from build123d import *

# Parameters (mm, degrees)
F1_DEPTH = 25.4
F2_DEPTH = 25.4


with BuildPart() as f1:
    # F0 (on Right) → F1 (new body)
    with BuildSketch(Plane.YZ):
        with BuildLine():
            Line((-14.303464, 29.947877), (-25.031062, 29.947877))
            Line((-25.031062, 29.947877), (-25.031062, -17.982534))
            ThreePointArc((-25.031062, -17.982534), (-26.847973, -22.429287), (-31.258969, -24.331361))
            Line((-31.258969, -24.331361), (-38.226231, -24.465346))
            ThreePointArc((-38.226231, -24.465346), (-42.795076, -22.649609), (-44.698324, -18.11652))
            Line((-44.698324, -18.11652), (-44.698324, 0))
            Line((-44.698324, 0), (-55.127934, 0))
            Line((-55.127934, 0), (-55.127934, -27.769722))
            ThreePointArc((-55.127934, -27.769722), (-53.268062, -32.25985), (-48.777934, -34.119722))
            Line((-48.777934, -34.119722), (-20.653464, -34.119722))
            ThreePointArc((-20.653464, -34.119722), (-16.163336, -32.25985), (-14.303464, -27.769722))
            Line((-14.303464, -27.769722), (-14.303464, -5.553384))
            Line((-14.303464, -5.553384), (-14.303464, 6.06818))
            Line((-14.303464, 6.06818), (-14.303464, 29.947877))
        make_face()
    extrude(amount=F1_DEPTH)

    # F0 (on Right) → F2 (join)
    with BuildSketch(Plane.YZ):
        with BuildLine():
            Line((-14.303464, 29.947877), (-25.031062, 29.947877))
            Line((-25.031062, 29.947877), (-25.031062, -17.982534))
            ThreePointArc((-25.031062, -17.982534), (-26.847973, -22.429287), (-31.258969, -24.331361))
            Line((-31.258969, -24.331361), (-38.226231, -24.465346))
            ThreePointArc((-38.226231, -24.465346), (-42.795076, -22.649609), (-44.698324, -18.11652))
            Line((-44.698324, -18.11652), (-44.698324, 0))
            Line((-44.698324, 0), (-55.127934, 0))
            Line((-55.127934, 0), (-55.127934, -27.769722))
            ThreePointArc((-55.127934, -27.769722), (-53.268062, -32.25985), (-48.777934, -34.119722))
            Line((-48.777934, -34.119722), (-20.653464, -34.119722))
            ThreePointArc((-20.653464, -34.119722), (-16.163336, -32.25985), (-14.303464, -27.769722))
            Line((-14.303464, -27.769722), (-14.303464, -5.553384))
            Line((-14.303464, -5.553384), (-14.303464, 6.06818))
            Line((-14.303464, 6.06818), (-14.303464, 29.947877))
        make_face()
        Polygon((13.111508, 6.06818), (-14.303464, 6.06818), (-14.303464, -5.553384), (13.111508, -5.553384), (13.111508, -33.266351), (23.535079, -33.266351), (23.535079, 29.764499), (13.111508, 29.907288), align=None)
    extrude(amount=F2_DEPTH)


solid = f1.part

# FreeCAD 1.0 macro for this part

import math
import FreeCAD as App
import Part
import Sketcher
Q = App.Units.Quantity

doc = App.newDocument("Part")
params = doc.addObject("Spreadsheet::Sheet", "Params")
for row, (alias, value) in enumerate([
    ("sketch1_radius", "0.25 in"),
    ("pad1_length", "1 in"),
    ("sketch2_radius", "0.25 in"),
    ("pad2_length", "1 in"),
], start=1):
    params.set(f"A{row}", alias)
    params.set(f"B{row}", "=" + value)
    params.setAlias(f"B{row}", alias)

body = doc.addObject("PartDesign::Body", "Body")

# Sketch on YZ plane
sketch1 = doc.addObject("Sketcher::SketchObject", "Sketch")
body.addObject(sketch1)
sketch1.AttachmentSupport = (doc.YZ_Plane, [""])
sketch1.MapMode = "FlatFace"
sketch1.addGeometry([
    Part.LineSegment(App.Vector(-14, 30, 0), App.Vector(-25, 30, 0)),  # 0
    Part.LineSegment(App.Vector(-25, 30, 0), App.Vector(-25, -18, 0)),  # 1
    Part.ArcOfCircle(Part.Circle(App.Vector(-31, -18, 0), App.Vector(0, 0, 1), 6), math.radians(-89), math.radians(0)),  # 2
    Part.LineSegment(App.Vector(-31, -24, 0), App.Vector(-38, -24, 0)),  # 3
    Part.ArcOfCircle(Part.Circle(App.Vector(-38, -18, 0), App.Vector(0, 0, 1), 6), math.radians(-180), math.radians(-89)),  # 4
    Part.LineSegment(App.Vector(-45, -18, 0), App.Vector(-45, 0, 0)),  # 5
    Part.LineSegment(App.Vector(-45, 0, 0), App.Vector(-55, 0, 0)),  # 6
    Part.LineSegment(App.Vector(-55, 0, 0), App.Vector(-55, -28, 0)),  # 7
    Part.ArcOfCircle(Part.Circle(App.Vector(-49, -28, 0), App.Vector(0, 0, 1), 6), math.radians(-180), math.radians(-90)),  # 8
    Part.LineSegment(App.Vector(-49, -34, 0), App.Vector(-21, -34, 0)),  # 9
    Part.ArcOfCircle(Part.Circle(App.Vector(-21, -28, 0), App.Vector(0, 0, 1), 6), math.radians(-90), math.radians(0)),  # 10
    Part.LineSegment(App.Vector(-14, -28, 0), App.Vector(-14, 30, 0)),  # 11
], False)
sketch1.addConstraint([
    Sketcher.Constraint("Coincident", 0, 2, 1, 1),
    Sketcher.Constraint("Tangent", 1, 2, 2, 2),
    Sketcher.Constraint("Tangent", 2, 1, 3, 1),
    Sketcher.Constraint("Tangent", 3, 2, 4, 2),
    Sketcher.Constraint("Tangent", 4, 1, 5, 1),
    Sketcher.Constraint("Coincident", 5, 2, 6, 1),
    Sketcher.Constraint("Coincident", 6, 2, 7, 1),
    Sketcher.Constraint("Tangent", 7, 2, 8, 1),
    Sketcher.Constraint("Tangent", 8, 2, 9, 1),
    Sketcher.Constraint("Tangent", 9, 2, 10, 1),
    Sketcher.Constraint("Tangent", 10, 2, 11, 1),
    Sketcher.Constraint("Coincident", 11, 2, 0, 1),
    Sketcher.Constraint("Horizontal", 0),
    Sketcher.Constraint("Vertical", 1),
    Sketcher.Constraint("Vertical", 5),
    Sketcher.Constraint("Horizontal", 6),
    Sketcher.Constraint("Vertical", 7),
    Sketcher.Constraint("Horizontal", 9),
    Sketcher.Constraint("Vertical", 11),
    Sketcher.Constraint("Equal", 2, 4),
    Sketcher.Constraint("Equal", 4, 8),
    Sketcher.Constraint("Equal", 8, 10),
    Sketcher.Constraint("PointOnObject", 5, 2, -1),
    Sketcher.Constraint("Radius", 2, Q("0.25 in")),
    Sketcher.Constraint("DistanceY", 11, 1, 11, 2, Q("57.717599 mm")),
    Sketcher.Constraint("DistanceX", 6, 2, 6, 1, Q("10.42961 mm")),
    Sketcher.Constraint("DistanceX", 9, 1, 9, 2, Q("28.12447 mm")),
    Sketcher.Constraint("DistanceY", 1, 2, 1, 1, Q("47.930411 mm")),
    Sketcher.Constraint("DistanceY", 5, 1, 5, 2, Q("18.11652 mm")),
    Sketcher.Constraint("DistanceY", 8, 3, 4, 3, Q("9.653202 mm")),
    Sketcher.Constraint("Distance", 3, Q("6.96855 mm")),
    Sketcher.Constraint("DistanceX", 2, 3, -1, 1, Q("31.381062 mm")),
])
sketch1.setExpression("Constraints[23]", "Params.sketch1_radius")
pad1 = doc.addObject("PartDesign::Pad", "Pad")
body.addObject(pad1)
pad1.Profile = sketch1
pad1.setExpression("Length", "Params.pad1_length")

# Sketch on YZ plane
sketch2 = doc.addObject("Sketcher::SketchObject", "Sketch001")
body.addObject(sketch2)
sketch2.AttachmentSupport = (doc.YZ_Plane, [""])
sketch2.MapMode = "FlatFace"
sketch2.addGeometry([
    Part.LineSegment(App.Vector(-14.303464, 29.947877, 0), App.Vector(-25.031062, 29.947877, 0)),  # 0
    Part.LineSegment(App.Vector(-25.031062, 29.947877, 0), App.Vector(-25.031062, -17.982534, 0)),  # 1
    Part.ArcOfCircle(Part.Circle(App.Vector(-31.381062, -17.982535, 0), App.Vector(0, 0, 1), 6.35), math.radians(-88.898293), math.radians(0.000009)),  # 2
    Part.LineSegment(App.Vector(-31.258969, -24.331361, 0), App.Vector(-38.226231, -24.465346, 0)),  # 3
    Part.ArcOfCircle(Part.Circle(App.Vector(-38.348324, -18.11652, 0), App.Vector(0, 0, 1), 6.35), math.radians(-180), math.radians(-88.898291)),  # 4
    Part.LineSegment(App.Vector(-44.698324, -18.11652, 0), App.Vector(-44.698324, 0, 0)),  # 5
    Part.LineSegment(App.Vector(-44.698324, 0, 0), App.Vector(-55.127934, 0, 0)),  # 6
    Part.LineSegment(App.Vector(-55.127934, 0, 0), App.Vector(-55.127934, -27.769722, 0)),  # 7
    Part.ArcOfCircle(Part.Circle(App.Vector(-48.777934, -27.769722, 0), App.Vector(0, 0, 1), 6.35), math.radians(-179.999998), math.radians(-90.000002)),  # 8
    Part.LineSegment(App.Vector(-48.777934, -34.119722, 0), App.Vector(-20.653464, -34.119722, 0)),  # 9
    Part.ArcOfCircle(Part.Circle(App.Vector(-20.653464, -27.769722, 0), App.Vector(0, 0, 1), 6.35), math.radians(-89.999998), math.radians(-0.000002)),  # 10
    Part.LineSegment(App.Vector(-14.303464, -27.769722, 0), App.Vector(-14.303464, -5.553384, 0)),  # 11
    Part.LineSegment(App.Vector(-14.303464, -5.553384, 0), App.Vector(13.111508, -5.553384, 0)),  # 12
    Part.LineSegment(App.Vector(13.111508, -5.553384, 0), App.Vector(13.111508, -33.266351, 0)),  # 13
    Part.LineSegment(App.Vector(13.111508, -33.266351, 0), App.Vector(23.535079, -33.266351, 0)),  # 14
    Part.LineSegment(App.Vector(23.535079, -33.266351, 0), App.Vector(23.535079, 29.764499, 0)),  # 15
    Part.LineSegment(App.Vector(23.535079, 29.764499, 0), App.Vector(13.111508, 29.907288, 0)),  # 16
    Part.LineSegment(App.Vector(13.111508, 29.907288, 0), App.Vector(13.111508, 6.06818, 0)),  # 17
    Part.LineSegment(App.Vector(13.111508, 6.06818, 0), App.Vector(-14.303464, 6.06818, 0)),  # 18
    Part.LineSegment(App.Vector(-14.303464, 6.06818, 0), App.Vector(-14.303464, 29.947877, 0)),  # 19
], False)
sketch2.addConstraint([
    Sketcher.Constraint("Coincident", 0, 2, 1, 1),
    Sketcher.Constraint("Tangent", 1, 2, 2, 2),
    Sketcher.Constraint("Tangent", 2, 1, 3, 1),
    Sketcher.Constraint("Tangent", 3, 2, 4, 2),
    Sketcher.Constraint("Tangent", 4, 1, 5, 1),
    Sketcher.Constraint("Coincident", 5, 2, 6, 1),
    Sketcher.Constraint("Coincident", 6, 2, 7, 1),
    Sketcher.Constraint("Tangent", 7, 2, 8, 1),
    Sketcher.Constraint("Tangent", 8, 2, 9, 1),
    Sketcher.Constraint("Tangent", 9, 2, 10, 1),
    Sketcher.Constraint("Tangent", 10, 2, 11, 1),
    Sketcher.Constraint("Coincident", 11, 2, 12, 1),
    Sketcher.Constraint("Coincident", 12, 2, 13, 1),
    Sketcher.Constraint("Coincident", 13, 2, 14, 1),
    Sketcher.Constraint("Coincident", 14, 2, 15, 1),
    Sketcher.Constraint("Coincident", 15, 2, 16, 1),
    Sketcher.Constraint("Coincident", 16, 2, 17, 1),
    Sketcher.Constraint("Coincident", 17, 2, 18, 1),
    Sketcher.Constraint("Coincident", 18, 2, 19, 1),
    Sketcher.Constraint("Coincident", 19, 2, 0, 1),
    Sketcher.Constraint("Horizontal", 0),
    Sketcher.Constraint("Vertical", 1),
    Sketcher.Constraint("Vertical", 5),
    Sketcher.Constraint("Horizontal", 6),
    Sketcher.Constraint("Vertical", 7),
    Sketcher.Constraint("Horizontal", 9),
    Sketcher.Constraint("Vertical", 11),
    Sketcher.Constraint("Horizontal", 12),
    Sketcher.Constraint("Vertical", 13),
    Sketcher.Constraint("Horizontal", 14),
    Sketcher.Constraint("Vertical", 15),
    Sketcher.Constraint("Vertical", 17),
    Sketcher.Constraint("Horizontal", 18),
    Sketcher.Constraint("Vertical", 19),
    Sketcher.Constraint("Equal", 2, 4),
    Sketcher.Constraint("Equal", 4, 8),
    Sketcher.Constraint("Equal", 8, 10),
    Sketcher.Constraint("PointOnObject", 5, 2, -1),
    Sketcher.Constraint("Vertical", 13, 2, 16, 2),
    Sketcher.Constraint("Vertical", 11, 2, 18, 2),
    Sketcher.Constraint("Radius", 2, Q("0.25 in")),
    Sketcher.Constraint("DistanceX", 6, 2, 6, 1, Q("10.42961 mm")),
    Sketcher.Constraint("DistanceX", 9, 1, 9, 2, Q("28.12447 mm")),
    Sketcher.Constraint("DistanceX", 12, 1, 12, 2, Q("27.414972 mm")),
    Sketcher.Constraint("DistanceX", 14, 1, 14, 2, Q("10.423571 mm")),
    Sketcher.Constraint("DistanceY", 1, 2, 1, 1, Q("47.930411 mm")),
    Sketcher.Constraint("DistanceY", 5, 1, 5, 2, Q("18.11652 mm")),
    Sketcher.Constraint("DistanceY", 11, 1, 11, 2, Q("22.216338 mm")),
    Sketcher.Constraint("DistanceY", 15, 1, 15, 2, Q("63.03085 mm")),
    Sketcher.Constraint("DistanceY", 17, 2, 17, 1, Q("23.839108 mm")),
    Sketcher.Constraint("DistanceY", -1, 1, 15, 2, Q("29.764499 mm")),
    Sketcher.Constraint("DistanceY", 8, 3, 4, 3, Q("9.653202 mm")),
    Sketcher.Constraint("DistanceY", 10, 3, 0, 2, Q("57.717599 mm")),
    Sketcher.Constraint("Distance", 3, Q("6.96855 mm")),
    Sketcher.Constraint("Distance", 16, Q("10.424549 mm")),
    Sketcher.Constraint("DistanceX", 2, 3, -1, 1, Q("31.381062 mm")),
])
sketch2.setExpression("Constraints[40]", "Params.sketch2_radius")
pad2 = doc.addObject("PartDesign::Pad", "Pad001")
body.addObject(pad2)
pad2.Profile = sketch2
pad2.setExpression("Length", "Params.pad2_length")

doc.recompute()
